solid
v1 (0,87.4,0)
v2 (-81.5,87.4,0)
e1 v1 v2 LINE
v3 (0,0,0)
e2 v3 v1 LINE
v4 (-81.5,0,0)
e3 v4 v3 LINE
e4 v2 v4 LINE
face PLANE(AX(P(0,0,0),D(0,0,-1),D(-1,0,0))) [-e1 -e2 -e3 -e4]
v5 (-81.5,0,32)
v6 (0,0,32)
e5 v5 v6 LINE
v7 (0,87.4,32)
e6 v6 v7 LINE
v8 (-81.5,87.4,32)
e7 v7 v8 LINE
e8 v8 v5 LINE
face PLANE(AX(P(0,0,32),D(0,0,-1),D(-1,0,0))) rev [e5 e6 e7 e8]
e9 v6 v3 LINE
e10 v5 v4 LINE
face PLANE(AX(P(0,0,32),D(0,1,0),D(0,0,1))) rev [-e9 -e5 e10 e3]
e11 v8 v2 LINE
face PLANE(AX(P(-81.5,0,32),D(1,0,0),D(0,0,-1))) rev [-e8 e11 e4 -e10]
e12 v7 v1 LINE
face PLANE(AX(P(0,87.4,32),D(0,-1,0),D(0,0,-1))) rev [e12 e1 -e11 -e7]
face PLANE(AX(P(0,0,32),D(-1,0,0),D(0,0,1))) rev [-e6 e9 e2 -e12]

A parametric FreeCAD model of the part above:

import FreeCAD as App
import Part
import Sketcher
from FreeCAD import Vector
Q = App.Units.Quantity

doc = App.newDocument("Part")
body = doc.addObject("PartDesign::Body", "Body")

sketch1 = body.newObject("Sketcher::SketchObject", "Sketch")
sketch1.AttachmentSupport = (doc.getObject("XY_Plane"), [""])
sketch1.MapMode = "FlatFace"
sketch1.addGeometry([
    Part.LineSegment(Vector(-81.5, 0, 0), Vector(0, 0, 0)),
    Part.LineSegment(Vector(0, 0, 0), Vector(0, 87.4, 0)),
    Part.LineSegment(Vector(0, 87.4, 0), Vector(-81.5, 87.4, 0)),
    Part.LineSegment(Vector(-81.5, 87.4, 0), Vector(-81.5, 0, 0)),
], False)
sketch1.addConstraint([
    Sketcher.Constraint("Coincident", 0, 2, 1, 1),
    Sketcher.Constraint("Coincident", 1, 2, 2, 1),
    Sketcher.Constraint("Coincident", 2, 2, 3, 1),
    Sketcher.Constraint("Coincident", 3, 2, 0, 1),
    Sketcher.Constraint("Horizontal", 0),
    Sketcher.Constraint("Vertical", 1),
    Sketcher.Constraint("Horizontal", 2),
    Sketcher.Constraint("Vertical", 3),
    Sketcher.Constraint("Coincident", 0, 2, -1, 1),
    Sketcher.Constraint("DistanceX", 0, 1, 0, 2, Q("81.5 mm")),
    Sketcher.Constraint("DistanceY", 1, 1, 1, 2, Q("87.4 mm")),
])
pad1 = body.newObject("PartDesign::Pad", "Pad")
pad1.Profile = sketch1
pad1.Length = 32

doc.recompute()
